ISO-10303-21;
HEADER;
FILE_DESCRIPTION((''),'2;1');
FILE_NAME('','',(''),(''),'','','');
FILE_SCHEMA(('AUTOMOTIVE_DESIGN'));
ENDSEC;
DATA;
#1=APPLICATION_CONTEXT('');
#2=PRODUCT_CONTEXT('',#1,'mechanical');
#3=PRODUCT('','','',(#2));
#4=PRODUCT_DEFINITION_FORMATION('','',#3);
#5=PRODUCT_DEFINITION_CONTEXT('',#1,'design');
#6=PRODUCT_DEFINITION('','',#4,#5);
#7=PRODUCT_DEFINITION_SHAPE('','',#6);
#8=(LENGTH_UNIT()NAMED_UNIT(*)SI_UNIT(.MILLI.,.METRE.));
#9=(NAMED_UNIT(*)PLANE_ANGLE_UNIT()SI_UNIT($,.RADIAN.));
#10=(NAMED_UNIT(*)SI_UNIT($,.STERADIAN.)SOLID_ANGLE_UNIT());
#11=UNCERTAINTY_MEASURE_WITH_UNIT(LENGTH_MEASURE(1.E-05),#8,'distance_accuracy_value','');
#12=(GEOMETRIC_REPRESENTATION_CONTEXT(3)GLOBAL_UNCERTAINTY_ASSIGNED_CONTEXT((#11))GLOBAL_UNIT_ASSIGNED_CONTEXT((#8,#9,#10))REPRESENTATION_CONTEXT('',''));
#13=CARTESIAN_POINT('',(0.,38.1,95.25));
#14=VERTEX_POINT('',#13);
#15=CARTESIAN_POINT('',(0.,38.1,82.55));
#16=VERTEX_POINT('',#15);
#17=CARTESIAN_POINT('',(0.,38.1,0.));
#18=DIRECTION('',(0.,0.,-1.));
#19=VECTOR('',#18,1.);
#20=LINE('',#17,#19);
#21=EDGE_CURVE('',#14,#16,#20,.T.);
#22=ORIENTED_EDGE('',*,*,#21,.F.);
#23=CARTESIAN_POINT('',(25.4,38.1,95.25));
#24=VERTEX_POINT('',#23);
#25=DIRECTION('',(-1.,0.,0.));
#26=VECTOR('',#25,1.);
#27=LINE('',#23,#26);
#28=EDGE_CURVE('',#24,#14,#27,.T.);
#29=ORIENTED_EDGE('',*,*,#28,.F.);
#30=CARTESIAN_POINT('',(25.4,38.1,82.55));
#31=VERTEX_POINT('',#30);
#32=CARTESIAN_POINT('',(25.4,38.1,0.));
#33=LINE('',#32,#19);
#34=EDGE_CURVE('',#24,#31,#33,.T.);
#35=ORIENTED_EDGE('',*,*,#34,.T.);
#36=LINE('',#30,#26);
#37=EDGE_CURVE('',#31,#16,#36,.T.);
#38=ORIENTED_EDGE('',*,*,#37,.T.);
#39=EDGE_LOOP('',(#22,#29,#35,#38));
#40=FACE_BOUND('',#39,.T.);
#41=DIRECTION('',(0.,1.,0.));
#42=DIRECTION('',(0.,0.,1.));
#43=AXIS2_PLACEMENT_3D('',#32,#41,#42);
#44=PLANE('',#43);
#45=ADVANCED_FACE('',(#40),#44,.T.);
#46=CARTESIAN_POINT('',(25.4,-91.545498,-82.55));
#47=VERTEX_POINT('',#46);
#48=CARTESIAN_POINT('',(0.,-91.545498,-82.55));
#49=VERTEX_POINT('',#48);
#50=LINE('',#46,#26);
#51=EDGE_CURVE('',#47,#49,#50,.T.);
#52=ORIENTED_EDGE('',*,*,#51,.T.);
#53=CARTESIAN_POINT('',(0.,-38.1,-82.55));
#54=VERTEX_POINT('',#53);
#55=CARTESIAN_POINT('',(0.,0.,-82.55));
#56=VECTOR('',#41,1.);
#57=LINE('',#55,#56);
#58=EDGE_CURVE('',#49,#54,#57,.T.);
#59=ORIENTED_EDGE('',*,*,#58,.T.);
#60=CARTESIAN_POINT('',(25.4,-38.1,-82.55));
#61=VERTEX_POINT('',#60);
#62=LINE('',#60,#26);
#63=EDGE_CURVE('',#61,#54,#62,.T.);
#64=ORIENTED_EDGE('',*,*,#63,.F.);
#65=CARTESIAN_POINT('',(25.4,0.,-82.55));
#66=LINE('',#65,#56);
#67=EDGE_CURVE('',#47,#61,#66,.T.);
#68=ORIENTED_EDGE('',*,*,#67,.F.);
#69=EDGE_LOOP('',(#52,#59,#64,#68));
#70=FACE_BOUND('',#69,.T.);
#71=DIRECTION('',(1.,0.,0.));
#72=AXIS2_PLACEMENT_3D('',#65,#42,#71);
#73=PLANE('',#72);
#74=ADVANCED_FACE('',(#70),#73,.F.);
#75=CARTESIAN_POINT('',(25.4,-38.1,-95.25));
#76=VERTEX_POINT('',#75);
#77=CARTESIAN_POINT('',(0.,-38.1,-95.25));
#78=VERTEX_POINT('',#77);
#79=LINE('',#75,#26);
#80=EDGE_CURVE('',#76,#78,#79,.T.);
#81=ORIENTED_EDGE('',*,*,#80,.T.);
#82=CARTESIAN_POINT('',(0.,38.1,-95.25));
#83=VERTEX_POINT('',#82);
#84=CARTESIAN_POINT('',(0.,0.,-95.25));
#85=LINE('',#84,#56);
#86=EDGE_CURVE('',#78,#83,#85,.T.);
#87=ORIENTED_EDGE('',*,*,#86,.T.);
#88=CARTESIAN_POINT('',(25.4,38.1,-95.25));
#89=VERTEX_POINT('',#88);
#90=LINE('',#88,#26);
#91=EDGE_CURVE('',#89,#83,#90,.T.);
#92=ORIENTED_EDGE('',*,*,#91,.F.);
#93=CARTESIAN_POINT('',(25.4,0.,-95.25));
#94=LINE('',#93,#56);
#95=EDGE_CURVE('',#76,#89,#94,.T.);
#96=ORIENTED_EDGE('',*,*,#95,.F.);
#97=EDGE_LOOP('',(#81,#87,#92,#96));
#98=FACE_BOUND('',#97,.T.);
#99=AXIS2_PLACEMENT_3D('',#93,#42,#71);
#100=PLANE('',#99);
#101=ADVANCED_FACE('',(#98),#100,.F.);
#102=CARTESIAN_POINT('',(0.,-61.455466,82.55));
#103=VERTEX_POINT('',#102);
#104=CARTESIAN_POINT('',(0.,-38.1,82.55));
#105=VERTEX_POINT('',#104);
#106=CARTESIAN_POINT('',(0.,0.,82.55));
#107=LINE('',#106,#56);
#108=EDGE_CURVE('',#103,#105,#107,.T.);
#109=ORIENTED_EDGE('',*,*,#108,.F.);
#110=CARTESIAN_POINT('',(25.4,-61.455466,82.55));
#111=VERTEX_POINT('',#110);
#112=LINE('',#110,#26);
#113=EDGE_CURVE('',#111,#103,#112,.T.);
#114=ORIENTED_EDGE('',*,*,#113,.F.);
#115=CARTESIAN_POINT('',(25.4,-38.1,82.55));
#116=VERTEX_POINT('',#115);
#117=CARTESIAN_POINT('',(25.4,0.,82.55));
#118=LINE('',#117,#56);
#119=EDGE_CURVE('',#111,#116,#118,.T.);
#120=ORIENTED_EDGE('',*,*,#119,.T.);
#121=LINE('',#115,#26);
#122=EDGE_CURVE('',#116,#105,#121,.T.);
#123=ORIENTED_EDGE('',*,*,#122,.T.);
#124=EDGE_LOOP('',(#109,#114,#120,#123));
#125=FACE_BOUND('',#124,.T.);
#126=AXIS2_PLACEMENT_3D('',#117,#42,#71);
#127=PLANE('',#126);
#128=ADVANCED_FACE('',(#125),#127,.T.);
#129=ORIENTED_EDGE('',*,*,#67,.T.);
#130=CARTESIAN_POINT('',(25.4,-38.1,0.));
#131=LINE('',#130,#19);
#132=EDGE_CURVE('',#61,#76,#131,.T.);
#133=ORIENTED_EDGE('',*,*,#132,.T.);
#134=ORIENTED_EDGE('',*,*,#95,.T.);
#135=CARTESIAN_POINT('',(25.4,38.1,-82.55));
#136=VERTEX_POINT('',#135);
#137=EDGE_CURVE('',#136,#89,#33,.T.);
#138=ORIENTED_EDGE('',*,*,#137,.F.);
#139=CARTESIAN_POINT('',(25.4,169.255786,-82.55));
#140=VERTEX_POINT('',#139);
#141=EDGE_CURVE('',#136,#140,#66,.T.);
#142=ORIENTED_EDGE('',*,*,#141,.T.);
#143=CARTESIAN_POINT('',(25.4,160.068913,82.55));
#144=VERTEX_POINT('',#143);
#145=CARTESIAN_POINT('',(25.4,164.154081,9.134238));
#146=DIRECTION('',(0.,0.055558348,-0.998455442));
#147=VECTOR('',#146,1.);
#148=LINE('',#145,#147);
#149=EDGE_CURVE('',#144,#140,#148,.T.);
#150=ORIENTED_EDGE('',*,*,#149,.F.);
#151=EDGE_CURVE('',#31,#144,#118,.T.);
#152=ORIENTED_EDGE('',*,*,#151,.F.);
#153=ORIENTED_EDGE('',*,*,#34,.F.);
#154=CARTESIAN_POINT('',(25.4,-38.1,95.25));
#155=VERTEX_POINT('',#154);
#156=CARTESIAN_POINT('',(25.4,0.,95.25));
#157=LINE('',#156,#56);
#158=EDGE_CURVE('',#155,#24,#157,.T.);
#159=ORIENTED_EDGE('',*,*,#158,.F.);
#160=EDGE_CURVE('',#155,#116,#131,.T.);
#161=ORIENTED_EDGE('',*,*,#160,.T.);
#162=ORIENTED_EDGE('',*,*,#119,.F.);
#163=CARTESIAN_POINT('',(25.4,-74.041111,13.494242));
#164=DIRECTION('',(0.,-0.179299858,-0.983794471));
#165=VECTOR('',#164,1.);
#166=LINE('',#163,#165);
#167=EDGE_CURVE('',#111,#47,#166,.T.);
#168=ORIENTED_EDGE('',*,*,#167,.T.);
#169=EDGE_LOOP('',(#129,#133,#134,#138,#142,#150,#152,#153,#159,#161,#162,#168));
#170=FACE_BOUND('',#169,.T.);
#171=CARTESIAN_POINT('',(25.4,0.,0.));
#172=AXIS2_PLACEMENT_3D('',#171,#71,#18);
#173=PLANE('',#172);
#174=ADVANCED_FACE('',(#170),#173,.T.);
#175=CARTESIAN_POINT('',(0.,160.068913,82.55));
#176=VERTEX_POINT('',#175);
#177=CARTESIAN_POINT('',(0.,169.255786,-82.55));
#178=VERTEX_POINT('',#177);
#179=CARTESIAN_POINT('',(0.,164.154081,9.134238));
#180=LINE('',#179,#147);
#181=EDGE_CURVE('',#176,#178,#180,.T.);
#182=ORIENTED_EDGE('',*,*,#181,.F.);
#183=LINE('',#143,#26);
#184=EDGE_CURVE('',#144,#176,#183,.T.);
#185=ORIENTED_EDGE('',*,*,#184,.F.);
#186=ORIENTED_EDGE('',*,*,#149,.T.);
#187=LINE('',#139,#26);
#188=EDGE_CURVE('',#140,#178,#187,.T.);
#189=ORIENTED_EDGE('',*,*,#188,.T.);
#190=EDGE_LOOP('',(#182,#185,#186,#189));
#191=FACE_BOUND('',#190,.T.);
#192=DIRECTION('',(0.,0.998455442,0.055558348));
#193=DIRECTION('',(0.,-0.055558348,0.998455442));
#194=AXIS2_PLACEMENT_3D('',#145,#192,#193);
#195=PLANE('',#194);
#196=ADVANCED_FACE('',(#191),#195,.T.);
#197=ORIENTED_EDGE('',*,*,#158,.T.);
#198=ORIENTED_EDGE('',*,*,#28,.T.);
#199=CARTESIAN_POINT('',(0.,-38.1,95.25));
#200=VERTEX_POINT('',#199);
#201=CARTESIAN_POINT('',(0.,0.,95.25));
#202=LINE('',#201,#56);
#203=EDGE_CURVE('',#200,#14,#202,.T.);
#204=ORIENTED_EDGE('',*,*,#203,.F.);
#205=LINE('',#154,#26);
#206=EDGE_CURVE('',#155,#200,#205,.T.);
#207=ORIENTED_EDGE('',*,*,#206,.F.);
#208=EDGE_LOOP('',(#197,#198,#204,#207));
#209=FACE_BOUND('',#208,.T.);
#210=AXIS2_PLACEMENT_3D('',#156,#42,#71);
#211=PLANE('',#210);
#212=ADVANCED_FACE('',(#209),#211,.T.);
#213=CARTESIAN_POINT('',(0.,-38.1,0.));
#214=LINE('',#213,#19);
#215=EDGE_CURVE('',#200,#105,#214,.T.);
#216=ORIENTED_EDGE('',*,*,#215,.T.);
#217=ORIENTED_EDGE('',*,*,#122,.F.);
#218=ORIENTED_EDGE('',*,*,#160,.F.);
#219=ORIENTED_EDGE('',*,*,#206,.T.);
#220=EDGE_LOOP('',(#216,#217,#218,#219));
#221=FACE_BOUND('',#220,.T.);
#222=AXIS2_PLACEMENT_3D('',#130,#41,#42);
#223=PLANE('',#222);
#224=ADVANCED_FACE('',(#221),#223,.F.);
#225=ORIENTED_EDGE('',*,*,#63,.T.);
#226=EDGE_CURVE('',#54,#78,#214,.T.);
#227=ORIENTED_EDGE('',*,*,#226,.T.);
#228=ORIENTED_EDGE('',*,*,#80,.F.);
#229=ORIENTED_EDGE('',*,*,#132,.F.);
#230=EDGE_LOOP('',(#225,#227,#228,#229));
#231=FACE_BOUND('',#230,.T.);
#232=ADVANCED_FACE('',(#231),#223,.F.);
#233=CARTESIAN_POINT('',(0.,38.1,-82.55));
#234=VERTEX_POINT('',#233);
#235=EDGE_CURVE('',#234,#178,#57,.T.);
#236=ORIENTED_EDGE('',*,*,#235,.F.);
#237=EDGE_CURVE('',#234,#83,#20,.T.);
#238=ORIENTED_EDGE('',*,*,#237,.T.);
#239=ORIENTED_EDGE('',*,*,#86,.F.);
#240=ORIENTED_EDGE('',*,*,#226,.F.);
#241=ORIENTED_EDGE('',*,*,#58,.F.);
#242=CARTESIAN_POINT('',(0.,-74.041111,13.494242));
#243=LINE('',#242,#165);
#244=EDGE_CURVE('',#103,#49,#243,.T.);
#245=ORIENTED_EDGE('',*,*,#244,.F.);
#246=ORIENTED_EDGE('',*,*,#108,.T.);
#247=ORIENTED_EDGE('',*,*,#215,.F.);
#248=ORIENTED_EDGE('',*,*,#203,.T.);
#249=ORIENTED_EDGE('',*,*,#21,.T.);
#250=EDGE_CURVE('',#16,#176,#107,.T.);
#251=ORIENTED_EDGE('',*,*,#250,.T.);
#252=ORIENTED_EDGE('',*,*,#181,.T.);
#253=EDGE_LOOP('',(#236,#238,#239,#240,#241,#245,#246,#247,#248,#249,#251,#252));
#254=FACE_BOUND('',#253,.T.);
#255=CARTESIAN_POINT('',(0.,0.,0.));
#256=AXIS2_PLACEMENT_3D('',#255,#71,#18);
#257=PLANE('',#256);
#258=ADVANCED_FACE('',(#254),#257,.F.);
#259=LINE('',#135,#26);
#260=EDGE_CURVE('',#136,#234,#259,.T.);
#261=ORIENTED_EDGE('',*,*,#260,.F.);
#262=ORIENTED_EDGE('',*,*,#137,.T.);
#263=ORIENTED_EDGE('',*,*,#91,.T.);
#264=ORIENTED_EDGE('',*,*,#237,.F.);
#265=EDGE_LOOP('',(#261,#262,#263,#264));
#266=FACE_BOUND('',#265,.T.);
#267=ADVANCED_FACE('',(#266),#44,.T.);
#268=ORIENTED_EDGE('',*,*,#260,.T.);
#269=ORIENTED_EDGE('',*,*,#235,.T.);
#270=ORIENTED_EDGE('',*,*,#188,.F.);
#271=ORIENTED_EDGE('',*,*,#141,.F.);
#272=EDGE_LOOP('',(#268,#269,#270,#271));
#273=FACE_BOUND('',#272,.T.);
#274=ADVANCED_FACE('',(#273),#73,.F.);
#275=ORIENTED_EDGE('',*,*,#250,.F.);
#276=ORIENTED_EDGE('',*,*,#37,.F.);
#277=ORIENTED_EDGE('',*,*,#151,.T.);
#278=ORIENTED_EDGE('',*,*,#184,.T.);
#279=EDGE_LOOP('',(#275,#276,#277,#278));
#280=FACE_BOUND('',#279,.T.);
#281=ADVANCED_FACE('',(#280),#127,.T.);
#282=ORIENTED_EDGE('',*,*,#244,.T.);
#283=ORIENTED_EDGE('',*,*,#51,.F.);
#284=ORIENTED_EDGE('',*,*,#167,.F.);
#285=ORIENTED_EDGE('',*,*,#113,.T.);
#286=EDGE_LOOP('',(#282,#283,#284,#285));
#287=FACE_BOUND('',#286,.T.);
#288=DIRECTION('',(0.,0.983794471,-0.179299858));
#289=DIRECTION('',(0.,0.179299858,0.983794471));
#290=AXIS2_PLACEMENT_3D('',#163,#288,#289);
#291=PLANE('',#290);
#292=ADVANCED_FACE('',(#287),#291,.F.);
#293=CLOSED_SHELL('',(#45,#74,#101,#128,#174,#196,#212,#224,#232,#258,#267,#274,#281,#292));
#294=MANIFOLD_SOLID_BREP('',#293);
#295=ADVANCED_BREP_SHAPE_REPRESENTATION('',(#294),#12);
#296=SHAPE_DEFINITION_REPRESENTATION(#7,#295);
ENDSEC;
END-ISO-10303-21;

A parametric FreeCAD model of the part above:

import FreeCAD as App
import Part
import Sketcher
from FreeCAD import Vector
Q = App.Units.Quantity

doc = App.newDocument("Part")
params = doc.addObject("Spreadsheet::Sheet", "Params")
for row, (alias, value) in enumerate([
    ("sketch1_width", "3 in"),
    ("sketch1_height", "0.5 in"),
    ("pad1_length", "1 in"),
], start=1):
    params.set(f"A{row}", alias)
    params.set(f"B{row}", "=" + value)
    params.setAlias(f"B{row}", alias)

body = doc.addObject("PartDesign::Body", "Body")

# Sketch on YZ plane
sketch1 = body.newObject("Sketcher::SketchObject", "Sketch")
sketch1.AttachmentSupport = (doc.getObject("YZ_Plane"), [""])
sketch1.MapMode = "FlatFace"
sketch1.addGeometry([
    Part.LineSegment(Vector(169, -83, 0), Vector(160, 83, 0)),  # 0
    Part.LineSegment(Vector(160, 83, 0), Vector(38, 83, 0)),  # 1
    Part.LineSegment(Vector(38, 83, 0), Vector(38, 95, 0)),  # 2
    Part.LineSegment(Vector(38, 95, 0), Vector(-38, 95, 0)),  # 3
    Part.LineSegment(Vector(-38, 95, 0), Vector(-38, 83, 0)),  # 4
    Part.LineSegment(Vector(-38, 83, 0), Vector(-61, 83, 0)),  # 5
    Part.LineSegment(Vector(-61, 83, 0), Vector(-92, -83, 0)),  # 6
    Part.LineSegment(Vector(-92, -83, 0), Vector(-38, -83, 0)),  # 7
    Part.LineSegment(Vector(-38, -83, 0), Vector(-38, -95, 0)),  # 8
    Part.LineSegment(Vector(-38, -95, 0), Vector(38, -95, 0)),  # 9
    Part.LineSegment(Vector(38, -95, 0), Vector(38, -83, 0)),  # 10
    Part.LineSegment(Vector(38, -83, 0), Vector(169, -83, 0)),  # 11
], False)
sketch1.addConstraint([
    Sketcher.Constraint("Coincident", 0, 2, 1, 1),
    Sketcher.Constraint("Coincident", 1, 2, 2, 1),
    Sketcher.Constraint("Coincident", 2, 2, 3, 1),
    Sketcher.Constraint("Coincident", 3, 2, 4, 1),
    Sketcher.Constraint("Coincident", 4, 2, 5, 1),
    Sketcher.Constraint("Coincident", 5, 2, 6, 1),
    Sketcher.Constraint("Coincident", 6, 2, 7, 1),
    Sketcher.Constraint("Coincident", 7, 2, 8, 1),
    Sketcher.Constraint("Coincident", 8, 2, 9, 1),
    Sketcher.Constraint("Coincident", 9, 2, 10, 1),
    Sketcher.Constraint("Coincident", 10, 2, 11, 1),
    Sketcher.Constraint("Coincident", 11, 2, 0, 1),
    Sketcher.Constraint("Horizontal", 1),
    Sketcher.Constraint("Vertical", 2),
    Sketcher.Constraint("Horizontal", 3),
    Sketcher.Constraint("Vertical", 4),
    Sketcher.Constraint("Horizontal", 5),
    Sketcher.Constraint("Horizontal", 7),
    Sketcher.Constraint("Vertical", 8),
    Sketcher.Constraint("Horizontal", 9),
    Sketcher.Constraint("Vertical", 10),
    Sketcher.Constraint("Horizontal", 11),
    Sketcher.Constraint("Symmetric", 1, 2, 7, 2, -1, 1),
    Sketcher.Constraint("Symmetric", 3, 2, 9, 2, -1, 1),
    Sketcher.Constraint("Symmetric", 1, 2, 4, 2, -2),
    Sketcher.Constraint("Horizontal", 7, 2, 10, 2),
    Sketcher.Constraint("DistanceX", 3, 2, 3, 1, Q("3 in")),
    Sketcher.Constraint("DistanceY", 2, 1, 2, 2, Q("0.5 in")),
    Sketcher.Constraint("DistanceY", 6, 2, 3, 2, Q("7 in")),
    Sketcher.Constraint("Distance", 0, 165.355401),
    Sketcher.Constraint("DistanceX", 1, 2, 1, 1, 121.968913),
    Sketcher.Constraint("DistanceX", 5, 2, 5, 1, 23.355466),
    Sketcher.Constraint("DistanceX", 7, 1, 7, 2, 53.445498),
])
sketch1.setExpression("Constraints[26]", "Params.sketch1_width")
sketch1.setExpression("Constraints[27]", "Params.sketch1_height")
pad1 = body.newObject("PartDesign::Pad", "Pad")
pad1.Profile = sketch1
pad1.setExpression("Length", "Params.pad1_length")

doc.recompute()
